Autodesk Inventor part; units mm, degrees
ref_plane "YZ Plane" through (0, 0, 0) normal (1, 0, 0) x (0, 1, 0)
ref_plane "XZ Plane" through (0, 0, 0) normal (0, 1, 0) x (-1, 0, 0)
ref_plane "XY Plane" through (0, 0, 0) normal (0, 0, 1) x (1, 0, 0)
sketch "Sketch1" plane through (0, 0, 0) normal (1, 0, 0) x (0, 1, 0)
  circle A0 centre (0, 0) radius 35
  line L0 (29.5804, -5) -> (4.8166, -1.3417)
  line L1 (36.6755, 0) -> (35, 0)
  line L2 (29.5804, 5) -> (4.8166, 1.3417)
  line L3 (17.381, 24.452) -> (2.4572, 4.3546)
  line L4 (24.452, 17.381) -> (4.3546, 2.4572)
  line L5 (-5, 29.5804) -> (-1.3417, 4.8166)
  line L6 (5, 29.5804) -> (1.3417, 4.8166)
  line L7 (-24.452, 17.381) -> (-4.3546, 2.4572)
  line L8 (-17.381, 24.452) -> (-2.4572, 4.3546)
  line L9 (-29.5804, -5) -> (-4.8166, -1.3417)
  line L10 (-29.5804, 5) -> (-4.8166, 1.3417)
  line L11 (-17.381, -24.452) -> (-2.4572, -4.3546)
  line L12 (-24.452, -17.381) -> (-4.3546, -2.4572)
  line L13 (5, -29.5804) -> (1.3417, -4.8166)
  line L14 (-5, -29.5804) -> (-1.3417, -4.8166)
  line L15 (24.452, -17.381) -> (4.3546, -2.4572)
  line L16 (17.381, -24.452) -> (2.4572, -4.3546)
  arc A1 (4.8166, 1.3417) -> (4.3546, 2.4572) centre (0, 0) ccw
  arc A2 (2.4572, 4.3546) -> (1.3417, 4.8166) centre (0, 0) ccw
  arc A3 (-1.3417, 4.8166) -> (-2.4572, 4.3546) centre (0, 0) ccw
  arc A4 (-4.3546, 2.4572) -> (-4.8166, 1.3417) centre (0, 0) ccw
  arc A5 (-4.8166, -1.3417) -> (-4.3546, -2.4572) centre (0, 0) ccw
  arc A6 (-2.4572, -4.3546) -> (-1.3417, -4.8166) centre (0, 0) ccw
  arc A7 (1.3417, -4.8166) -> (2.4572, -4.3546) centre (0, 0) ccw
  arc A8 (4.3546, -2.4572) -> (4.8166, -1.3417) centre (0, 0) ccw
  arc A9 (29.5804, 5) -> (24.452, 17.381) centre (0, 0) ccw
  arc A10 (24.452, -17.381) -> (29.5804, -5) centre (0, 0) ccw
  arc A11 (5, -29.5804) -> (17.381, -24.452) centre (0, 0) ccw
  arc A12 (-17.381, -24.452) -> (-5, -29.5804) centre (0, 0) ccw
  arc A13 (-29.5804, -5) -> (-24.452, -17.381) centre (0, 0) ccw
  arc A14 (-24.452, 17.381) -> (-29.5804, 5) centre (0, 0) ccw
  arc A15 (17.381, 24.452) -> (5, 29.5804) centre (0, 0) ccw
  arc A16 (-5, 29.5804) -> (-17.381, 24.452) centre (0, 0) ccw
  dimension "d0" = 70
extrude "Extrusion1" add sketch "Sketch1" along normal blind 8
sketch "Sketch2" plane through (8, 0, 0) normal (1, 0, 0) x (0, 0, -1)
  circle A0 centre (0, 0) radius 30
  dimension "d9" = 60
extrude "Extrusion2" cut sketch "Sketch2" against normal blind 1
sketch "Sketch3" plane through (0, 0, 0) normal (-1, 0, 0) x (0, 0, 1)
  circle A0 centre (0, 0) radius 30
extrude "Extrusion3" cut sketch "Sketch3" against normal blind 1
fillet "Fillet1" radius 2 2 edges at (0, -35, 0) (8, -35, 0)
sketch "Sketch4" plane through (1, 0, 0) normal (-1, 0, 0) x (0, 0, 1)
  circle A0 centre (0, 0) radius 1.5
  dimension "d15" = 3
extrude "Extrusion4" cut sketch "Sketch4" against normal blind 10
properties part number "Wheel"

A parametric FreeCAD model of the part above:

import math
import FreeCAD as App
import Part
import Sketcher
from FreeCAD import Vector


def edges_at(feature, points):
    """Names of the edges that pass closest to the given points."""
    edges = feature.Shape.Edges
    near = lambda p: min(range(len(edges)), key=lambda i: edges[i].distToShape(Part.Vertex(*p))[0])
    return sorted({f"Edge{near(p) + 1}" for p in points})

doc = App.newDocument("Part")
body = doc.addObject("PartDesign::Body", "Body")

sketch1 = body.newObject("Sketcher::SketchObject", "Sketch")
sketch1.AttachmentSupport = (doc.getObject("YZ_Plane"), [""])
sketch1.MapMode = "FlatFace"
sketch1.addGeometry(Part.Circle(Vector(0, 0, 0), Vector(0, 0, 1), 35), False)
sketch1.addGeometry(Part.ArcOfCircle(Part.Circle(Vector(0, 0, 0), Vector(0, 0, 1), 30.000001), math.radians(-125.406022), math.radians(-99.594068)), False)
sketch1.addGeometry(Part.LineSegment(Vector(-17.381, -24.452, 0), Vector(-2.4572, -4.3546, 0)), False)
sketch1.addGeometry(Part.ArcOfCircle(Part.Circle(Vector(-0.001733, -0.003559, 0), Vector(0, 0, 1), 4.996086), math.radians(-119.437777), math.radians(-105.55738)), False)
sketch1.addGeometry(Part.LineSegment(Vector(-1.3417, -4.8166, 0), Vector(-5, -29.5804, 0)), False)
sketch1.addGeometry(Part.ArcOfCircle(Part.Circle(Vector(0, 0, 0), Vector(0, 0, 1), 29.999991), math.radians(-170.405932), math.radians(-144.593978)), False)
sketch1.addGeometry(Part.LineSegment(Vector(-29.5804, -5, 0), Vector(-4.8166, -1.3417, 0)), False)
sketch1.addGeometry(Part.ArcOfCircle(Part.Circle(Vector(0.003748, 0.001293, 0), Vector(0, 0, 1), 5.003937), math.radians(-164.431678), math.radians(-150.573165)), False)
sketch1.addGeometry(Part.LineSegment(Vector(-4.3546, -2.4572, 0), Vector(-24.452, -17.381, 0)), False)
sketch1.addGeometry(Part.ArcOfCircle(Part.Circle(Vector(0, 0, 0), Vector(0, 0, 1), 29.999991), math.radians(-80.405932), math.radians(-54.593978)), False)
sketch1.addGeometry(Part.LineSegment(Vector(5, -29.5804, 0), Vector(1.3417, -4.8166, 0)), False)
sketch1.addGeometry(Part.ArcOfCircle(Part.Circle(Vector(-0.001293, 0.003748, 0), Vector(0, 0, 1), 5.003937), math.radians(-74.431678), math.radians(-60.573165)), False)
sketch1.addGeometry(Part.LineSegment(Vector(2.4572, -4.3546, 0), Vector(17.381, -24.452, 0)), False)
sketch1.addGeometry(Part.LineSegment(Vector(4.8166, -1.3417, 0), Vector(29.5804, -5, 0)), False)
sketch1.addGeometry(Part.ArcOfCircle(Part.Circle(Vector(0, 0, 0), Vector(0, 0, 1), 30.000001), math.radians(-35.406022), math.radians(-9.594068)), False)
sketch1.addGeometry(Part.LineSegment(Vector(24.452, -17.381, 0), Vector(4.3546, -2.4572, 0)), False)
sketch1.addGeometry(Part.ArcOfCircle(Part.Circle(Vector(0.003559, -0.001733, 0), Vector(0, 0, 1), 4.996086), math.radians(-29.437777), math.radians(-15.55738)), False)
sketch1.addGeometry(Part.ArcOfCircle(Part.Circle(Vector(0, 0, 0), Vector(0, 0, 1), 30.000001), math.radians(144.593978), math.radians(170.405932)), False)
sketch1.addGeometry(Part.LineSegment(Vector(-24.452, 17.381, 0), Vector(-4.3546, 2.4572, 0)), False)
sketch1.addGeometry(Part.ArcOfCircle(Part.Circle(Vector(-0.003559, 0.001733, 0), Vector(0, 0, 1), 4.996086), math.radians(150.562223), math.radians(164.44262)), False)
sketch1.addGeometry(Part.LineSegment(Vector(-4.8166, 1.3417, 0), Vector(-29.5804, 5, 0)), False)
sketch1.addGeometry(Part.ArcOfCircle(Part.Circle(Vector(0, 0, 0), Vector(0, 0, 1), 29.999991), math.radians(99.594068), math.radians(125.406022)), False)
sketch1.addGeometry(Part.LineSegment(Vector(-5, 29.5804, 0), Vector(-1.3417, 4.8166, 0)), False)
sketch1.addGeometry(Part.ArcOfCircle(Part.Circle(Vector(0.001293, -0.003748, 0), Vector(0, 0, 1), 5.003937), math.radians(105.568322), math.radians(119.426835)), False)
sketch1.addGeometry(Part.LineSegment(Vector(-2.4572, 4.3546, 0), Vector(-17.381, 24.452, 0)), False)
sketch1.addGeometry(Part.ArcOfCircle(Part.Circle(Vector(0, 0, 0), Vector(0, 0, 1), 29.999991), math.radians(9.594068), math.radians(35.406022)), False)
sketch1.addGeometry(Part.LineSegment(Vector(29.5804, 5, 0), Vector(4.8166, 1.3417, 0)), False)
sketch1.addGeometry(Part.ArcOfCircle(Part.Circle(Vector(-0.003748, -0.001293, 0), Vector(0, 0, 1), 5.003937), math.radians(15.568322), math.radians(29.426835)), False)
sketch1.addGeometry(Part.LineSegment(Vector(4.3546, 2.4572, 0), Vector(24.452, 17.381, 0)), False)
sketch1.addGeometry(Part.ArcOfCircle(Part.Circle(Vector(0, 0, 0), Vector(0, 0, 1), 30.000001), math.radians(54.593978), math.radians(80.405932)), False)
sketch1.addGeometry(Part.LineSegment(Vector(17.381, 24.452, 0), Vector(2.4572, 4.3546, 0)), False)
sketch1.addGeometry(Part.ArcOfCircle(Part.Circle(Vector(0.001733, 0.003559, 0), Vector(0, 0, 1), 4.996086), math.radians(60.562223), math.radians(74.44262)), False)
sketch1.addGeometry(Part.LineSegment(Vector(1.3417, 4.8166, 0), Vector(5, 29.5804, 0)), False)
sketch1.addConstraint(Sketcher.Constraint("Coincident", 1, 1, 2, 1))
sketch1.addConstraint(Sketcher.Constraint("Coincident", 2, 2, 3, 1))
sketch1.addConstraint(Sketcher.Constraint("Coincident", 3, 2, 4, 1))
sketch1.addConstraint(Sketcher.Constraint("Coincident", 4, 2, 1, 2))
sketch1.addConstraint(Sketcher.Constraint("Coincident", 5, 1, 6, 1))
sketch1.addConstraint(Sketcher.Constraint("Coincident", 6, 2, 7, 1))
sketch1.addConstraint(Sketcher.Constraint("Coincident", 7, 2, 8, 1))
sketch1.addConstraint(Sketcher.Constraint("Coincident", 8, 2, 5, 2))
sketch1.addConstraint(Sketcher.Constraint("Coincident", 9, 1, 10, 1))
sketch1.addConstraint(Sketcher.Constraint("Coincident", 10, 2, 11, 1))
sketch1.addConstraint(Sketcher.Constraint("Coincident", 11, 2, 12, 1))
sketch1.addConstraint(Sketcher.Constraint("Coincident", 12, 2, 9, 2))
sketch1.addConstraint(Sketcher.Constraint("Coincident", 13, 2, 14, 2))
sketch1.addConstraint(Sketcher.Constraint("Coincident", 14, 1, 15, 1))
sketch1.addConstraint(Sketcher.Constraint("Coincident", 15, 2, 16, 1))
sketch1.addConstraint(Sketcher.Constraint("Coincident", 16, 2, 13, 1))
sketch1.addConstraint(Sketcher.Constraint("Coincident", 17, 1, 18, 1))
sketch1.addConstraint(Sketcher.Constraint("Coincident", 18, 2, 19, 1))
sketch1.addConstraint(Sketcher.Constraint("Coincident", 19, 2, 20, 1))
sketch1.addConstraint(Sketcher.Constraint("Coincident", 20, 2, 17, 2))
sketch1.addConstraint(Sketcher.Constraint("Coincident", 21, 1, 22, 1))
sketch1.addConstraint(Sketcher.Constraint("Coincident", 22, 2, 23, 1))
sketch1.addConstraint(Sketcher.Constraint("Coincident", 23, 2, 24, 1))
sketch1.addConstraint(Sketcher.Constraint("Coincident", 24, 2, 21, 2))
sketch1.addConstraint(Sketcher.Constraint("Coincident", 25, 1, 26, 1))
sketch1.addConstraint(Sketcher.Constraint("Coincident", 26, 2, 27, 1))
sketch1.addConstraint(Sketcher.Constraint("Coincident", 27, 2, 28, 1))
sketch1.addConstraint(Sketcher.Constraint("Coincident", 28, 2, 25, 2))
sketch1.addConstraint(Sketcher.Constraint("Coincident", 29, 1, 30, 1))
sketch1.addConstraint(Sketcher.Constraint("Coincident", 30, 2, 31, 1))
sketch1.addConstraint(Sketcher.Constraint("Coincident", 31, 2, 32, 1))
sketch1.addConstraint(Sketcher.Constraint("Coincident", 32, 2, 29, 2))
sketch1.addConstraint(Sketcher.Constraint("Coincident", 0, 3, -1, 1))
sketch1.addConstraint(Sketcher.Constraint("Coincident", 1, 3, -1, 1))
sketch1.addConstraint(Sketcher.Constraint("Coincident", 5, 3, -1, 1))
sketch1.addConstraint(Sketcher.Constraint("Coincident", 9, 3, -1, 1))
sketch1.addConstraint(Sketcher.Constraint("Coincident", 14, 3, -1, 1))
sketch1.addConstraint(Sketcher.Constraint("Coincident", 17, 3, -1, 1))
sketch1.addConstraint(Sketcher.Constraint("Coincident", 21, 3, -1, 1))
sketch1.addConstraint(Sketcher.Constraint("Coincident", 25, 3, -1, 1))
sketch1.addConstraint(Sketcher.Constraint("Coincident", 29, 3, -1, 1))
sketch1.addConstraint(Sketcher.Constraint("Equal", 1, 5))
sketch1.addConstraint(Sketcher.Constraint("Equal", 5, 9))
sketch1.addConstraint(Sketcher.Constraint("Equal", 7, 11))
sketch1.addConstraint(Sketcher.Constraint("Equal", 9, 14))
sketch1.addConstraint(Sketcher.Constraint("Equal", 3, 16))
sketch1.addConstraint(Sketcher.Constraint("Equal", 14, 17))
sketch1.addConstraint(Sketcher.Constraint("Equal", 16, 19))
sketch1.addConstraint(Sketcher.Constraint("Equal", 17, 21))
sketch1.addConstraint(Sketcher.Constraint("Equal", 11, 23))
sketch1.addConstraint(Sketcher.Constraint("Equal", 21, 25))
sketch1.addConstraint(Sketcher.Constraint("Equal", 23, 27))
sketch1.addConstraint(Sketcher.Constraint("Equal", 25, 29))
sketch1.addConstraint(Sketcher.Constraint("Equal", 19, 31))
sketch1.addConstraint(Sketcher.Constraint("Symmetric", 16, 3, 19, 3, -1, 1))
sketch1.addConstraint(Sketcher.Constraint("Symmetric", 11, 3, 23, 3, -1, 1))
sketch1.addConstraint(Sketcher.Constraint("Symmetric", 7, 3, 27, 3, -1, 1))
sketch1.addConstraint(Sketcher.Constraint("Symmetric", 3, 3, 31, 3, -1, 1))
sketch1.addConstraint(Sketcher.Constraint("Symmetric", 3, 2, 10, 2, -2))
sketch1.addConstraint(Sketcher.Constraint("Symmetric", 2, 2, 11, 2, -2))
sketch1.addConstraint(Sketcher.Constraint("Symmetric", 7, 2, 15, 2, -2))
sketch1.addConstraint(Sketcher.Constraint("Symmetric", 6, 2, 16, 2, -2))
sketch1.addConstraint(Sketcher.Constraint("Perpendicular", 6, 10))
sketch1.addConstraint(Sketcher.Constraint("Perpendicular", 8, 12))
sketch1.addConstraint(Sketcher.Constraint("Perpendicular", 4, 13))
sketch1.addConstraint(Sketcher.Constraint("Perpendicular", 2, 15))
sketch1.addConstraint(Sketcher.Constraint("Parallel", 15, 18))
sketch1.addConstraint(Sketcher.Constraint("Parallel", 13, 20))
sketch1.addConstraint(Sketcher.Constraint("Parallel", 10, 22))
sketch1.addConstraint(Sketcher.Constraint("Parallel", 12, 24))
sketch1.addConstraint(Sketcher.Constraint("Perpendicular", 22, 26))
sketch1.addConstraint(Sketcher.Constraint("Perpendicular", 24, 28))
sketch1.addConstraint(Sketcher.Constraint("Perpendicular", 18, 30))
sketch1.addConstraint(Sketcher.Constraint("Perpendicular", 20, 32))
sketch1.addConstraint(Sketcher.Constraint("Horizontal", 3, 3, 23, 3))
sketch1.addConstraint(Sketcher.Constraint("Horizontal", 4, 2, 9, 1))
sketch1.addConstraint(Sketcher.Constraint("Horizontal", 1, 1, 12, 2))
sketch1.addConstraint(Sketcher.Constraint("Horizontal", 20, 2, 25, 1))
sketch1.addConstraint(Sketcher.Constraint("Horizontal", 18, 2, 27, 2))
sketch1.addConstraint(Sketcher.Constraint("Horizontal", 24, 2, 29, 1))
sketch1.addConstraint(Sketcher.Constraint("Horizontal", 22, 2, 31, 2))
sketch1.addConstraint(Sketcher.Constraint("Vertical", 7, 3, 16, 3))
sketch1.addConstraint(Sketcher.Constraint("Vertical", 8, 2, 17, 1))
sketch1.addConstraint(Sketcher.Constraint("Vertical", 6, 2, 19, 2))
sketch1.addConstraint(Sketcher.Constraint("Vertical", 4, 2, 21, 1))
sketch1.addConstraint(Sketcher.Constraint("Vertical", 2, 2, 23, 2))
sketch1.addConstraint(Sketcher.Constraint("Equal", 2, 4))
sketch1.addConstraint(Sketcher.Constraint("Equal", 4, 6))
sketch1.addConstraint(Sketcher.Constraint("Equal", 6, 8))
sketch1.addConstraint(Sketcher.Constraint("Diameter", 0, 70.0))
sketch1.addConstraint(Sketcher.Constraint("Radius", 1, 30.0))
sketch1.addConstraint(Sketcher.Constraint("DistanceX", 4, 2, -1, 1, 5.0))
sketch1.addConstraint(Sketcher.Constraint("DistanceY", 5, 1, -1, 1, 5.0))
sketch1.addConstraint(Sketcher.Constraint("Radius", 3, 4.996))
sketch1.addConstraint(Sketcher.Constraint("Radius", 7, 5.004))
sketch1.addConstraint(Sketcher.Constraint("DistanceX", 3, 2, 3, 3, 1.34))
sketch1.addConstraint(Sketcher.Constraint("DistanceX", 1, 1, -1, 1, 17.381))
sketch1.addConstraint(Sketcher.Constraint("DistanceX", 11, 3, 7, 3, 0.005))
pad1 = body.newObject("PartDesign::Pad", "Pad")
pad1.Profile = sketch1
pad1.Length = 8

sketch2 = body.newObject("Sketcher::SketchObject", "Sketch001")
sketch2.AttachmentSupport = (doc.getObject("YZ_Plane"), [""])
sketch2.MapMode = "FlatFace"
sketch2.AttachmentOffset = App.Placement(Vector(0, 0, 8), App.Rotation())
sketch2.addGeometry(Part.Circle(Vector(0, 0, 0), Vector(0, 0, 1), 30), False)
sketch2.addConstraint(Sketcher.Constraint("Coincident", 0, 3, -1, 1))
sketch2.addConstraint(Sketcher.Constraint("Diameter", 0, 60.0))
pocket1 = body.newObject("PartDesign::Pocket", "Pocket")
pocket1.Profile = sketch2
pocket1.Length = 1

sketch3 = body.newObject("Sketcher::SketchObject", "Sketch002")
sketch3.AttachmentSupport = (doc.getObject("YZ_Plane"), [""])
sketch3.MapMode = "FlatFace"
sketch3.addGeometry(Part.Circle(Vector(0, 0, 0), Vector(0, 0, 1), 30), False)
sketch3.addConstraint(Sketcher.Constraint("Coincident", 0, 3, -1, 1))
sketch3.addConstraint(Sketcher.Constraint("Diameter", 0, 60.0))
pocket2 = body.newObject("PartDesign::Pocket", "Pocket001")
pocket2.Profile = sketch3
pocket2.Length = 1
pocket2.Reversed = True
doc.recompute()

fillet = body.newObject("PartDesign::Fillet", "Fillet")
fillet.Base = (pocket2, edges_at(pocket2, [(0, -35, 0), (8, -35, 0)]))
fillet.Radius = 2

sketch4 = body.newObject("Sketcher::SketchObject", "Sketch003")
sketch4.AttachmentSupport = (doc.getObject("YZ_Plane"), [""])
sketch4.MapMode = "FlatFace"
sketch4.AttachmentOffset = App.Placement(Vector(0, 0, 1), App.Rotation())
sketch4.addGeometry(Part.Circle(Vector(0, 0, 0), Vector(0, 0, 1), 1.5), False)
sketch4.addConstraint(Sketcher.Constraint("Coincident", 0, 3, -1, 1))
sketch4.addConstraint(Sketcher.Constraint("Diameter", 0, 3.0))
pocket3 = body.newObject("PartDesign::Pocket", "Pocket002")
pocket3.Profile = sketch4
pocket3.Length = 10
pocket3.Reversed = True

doc.recompute()
